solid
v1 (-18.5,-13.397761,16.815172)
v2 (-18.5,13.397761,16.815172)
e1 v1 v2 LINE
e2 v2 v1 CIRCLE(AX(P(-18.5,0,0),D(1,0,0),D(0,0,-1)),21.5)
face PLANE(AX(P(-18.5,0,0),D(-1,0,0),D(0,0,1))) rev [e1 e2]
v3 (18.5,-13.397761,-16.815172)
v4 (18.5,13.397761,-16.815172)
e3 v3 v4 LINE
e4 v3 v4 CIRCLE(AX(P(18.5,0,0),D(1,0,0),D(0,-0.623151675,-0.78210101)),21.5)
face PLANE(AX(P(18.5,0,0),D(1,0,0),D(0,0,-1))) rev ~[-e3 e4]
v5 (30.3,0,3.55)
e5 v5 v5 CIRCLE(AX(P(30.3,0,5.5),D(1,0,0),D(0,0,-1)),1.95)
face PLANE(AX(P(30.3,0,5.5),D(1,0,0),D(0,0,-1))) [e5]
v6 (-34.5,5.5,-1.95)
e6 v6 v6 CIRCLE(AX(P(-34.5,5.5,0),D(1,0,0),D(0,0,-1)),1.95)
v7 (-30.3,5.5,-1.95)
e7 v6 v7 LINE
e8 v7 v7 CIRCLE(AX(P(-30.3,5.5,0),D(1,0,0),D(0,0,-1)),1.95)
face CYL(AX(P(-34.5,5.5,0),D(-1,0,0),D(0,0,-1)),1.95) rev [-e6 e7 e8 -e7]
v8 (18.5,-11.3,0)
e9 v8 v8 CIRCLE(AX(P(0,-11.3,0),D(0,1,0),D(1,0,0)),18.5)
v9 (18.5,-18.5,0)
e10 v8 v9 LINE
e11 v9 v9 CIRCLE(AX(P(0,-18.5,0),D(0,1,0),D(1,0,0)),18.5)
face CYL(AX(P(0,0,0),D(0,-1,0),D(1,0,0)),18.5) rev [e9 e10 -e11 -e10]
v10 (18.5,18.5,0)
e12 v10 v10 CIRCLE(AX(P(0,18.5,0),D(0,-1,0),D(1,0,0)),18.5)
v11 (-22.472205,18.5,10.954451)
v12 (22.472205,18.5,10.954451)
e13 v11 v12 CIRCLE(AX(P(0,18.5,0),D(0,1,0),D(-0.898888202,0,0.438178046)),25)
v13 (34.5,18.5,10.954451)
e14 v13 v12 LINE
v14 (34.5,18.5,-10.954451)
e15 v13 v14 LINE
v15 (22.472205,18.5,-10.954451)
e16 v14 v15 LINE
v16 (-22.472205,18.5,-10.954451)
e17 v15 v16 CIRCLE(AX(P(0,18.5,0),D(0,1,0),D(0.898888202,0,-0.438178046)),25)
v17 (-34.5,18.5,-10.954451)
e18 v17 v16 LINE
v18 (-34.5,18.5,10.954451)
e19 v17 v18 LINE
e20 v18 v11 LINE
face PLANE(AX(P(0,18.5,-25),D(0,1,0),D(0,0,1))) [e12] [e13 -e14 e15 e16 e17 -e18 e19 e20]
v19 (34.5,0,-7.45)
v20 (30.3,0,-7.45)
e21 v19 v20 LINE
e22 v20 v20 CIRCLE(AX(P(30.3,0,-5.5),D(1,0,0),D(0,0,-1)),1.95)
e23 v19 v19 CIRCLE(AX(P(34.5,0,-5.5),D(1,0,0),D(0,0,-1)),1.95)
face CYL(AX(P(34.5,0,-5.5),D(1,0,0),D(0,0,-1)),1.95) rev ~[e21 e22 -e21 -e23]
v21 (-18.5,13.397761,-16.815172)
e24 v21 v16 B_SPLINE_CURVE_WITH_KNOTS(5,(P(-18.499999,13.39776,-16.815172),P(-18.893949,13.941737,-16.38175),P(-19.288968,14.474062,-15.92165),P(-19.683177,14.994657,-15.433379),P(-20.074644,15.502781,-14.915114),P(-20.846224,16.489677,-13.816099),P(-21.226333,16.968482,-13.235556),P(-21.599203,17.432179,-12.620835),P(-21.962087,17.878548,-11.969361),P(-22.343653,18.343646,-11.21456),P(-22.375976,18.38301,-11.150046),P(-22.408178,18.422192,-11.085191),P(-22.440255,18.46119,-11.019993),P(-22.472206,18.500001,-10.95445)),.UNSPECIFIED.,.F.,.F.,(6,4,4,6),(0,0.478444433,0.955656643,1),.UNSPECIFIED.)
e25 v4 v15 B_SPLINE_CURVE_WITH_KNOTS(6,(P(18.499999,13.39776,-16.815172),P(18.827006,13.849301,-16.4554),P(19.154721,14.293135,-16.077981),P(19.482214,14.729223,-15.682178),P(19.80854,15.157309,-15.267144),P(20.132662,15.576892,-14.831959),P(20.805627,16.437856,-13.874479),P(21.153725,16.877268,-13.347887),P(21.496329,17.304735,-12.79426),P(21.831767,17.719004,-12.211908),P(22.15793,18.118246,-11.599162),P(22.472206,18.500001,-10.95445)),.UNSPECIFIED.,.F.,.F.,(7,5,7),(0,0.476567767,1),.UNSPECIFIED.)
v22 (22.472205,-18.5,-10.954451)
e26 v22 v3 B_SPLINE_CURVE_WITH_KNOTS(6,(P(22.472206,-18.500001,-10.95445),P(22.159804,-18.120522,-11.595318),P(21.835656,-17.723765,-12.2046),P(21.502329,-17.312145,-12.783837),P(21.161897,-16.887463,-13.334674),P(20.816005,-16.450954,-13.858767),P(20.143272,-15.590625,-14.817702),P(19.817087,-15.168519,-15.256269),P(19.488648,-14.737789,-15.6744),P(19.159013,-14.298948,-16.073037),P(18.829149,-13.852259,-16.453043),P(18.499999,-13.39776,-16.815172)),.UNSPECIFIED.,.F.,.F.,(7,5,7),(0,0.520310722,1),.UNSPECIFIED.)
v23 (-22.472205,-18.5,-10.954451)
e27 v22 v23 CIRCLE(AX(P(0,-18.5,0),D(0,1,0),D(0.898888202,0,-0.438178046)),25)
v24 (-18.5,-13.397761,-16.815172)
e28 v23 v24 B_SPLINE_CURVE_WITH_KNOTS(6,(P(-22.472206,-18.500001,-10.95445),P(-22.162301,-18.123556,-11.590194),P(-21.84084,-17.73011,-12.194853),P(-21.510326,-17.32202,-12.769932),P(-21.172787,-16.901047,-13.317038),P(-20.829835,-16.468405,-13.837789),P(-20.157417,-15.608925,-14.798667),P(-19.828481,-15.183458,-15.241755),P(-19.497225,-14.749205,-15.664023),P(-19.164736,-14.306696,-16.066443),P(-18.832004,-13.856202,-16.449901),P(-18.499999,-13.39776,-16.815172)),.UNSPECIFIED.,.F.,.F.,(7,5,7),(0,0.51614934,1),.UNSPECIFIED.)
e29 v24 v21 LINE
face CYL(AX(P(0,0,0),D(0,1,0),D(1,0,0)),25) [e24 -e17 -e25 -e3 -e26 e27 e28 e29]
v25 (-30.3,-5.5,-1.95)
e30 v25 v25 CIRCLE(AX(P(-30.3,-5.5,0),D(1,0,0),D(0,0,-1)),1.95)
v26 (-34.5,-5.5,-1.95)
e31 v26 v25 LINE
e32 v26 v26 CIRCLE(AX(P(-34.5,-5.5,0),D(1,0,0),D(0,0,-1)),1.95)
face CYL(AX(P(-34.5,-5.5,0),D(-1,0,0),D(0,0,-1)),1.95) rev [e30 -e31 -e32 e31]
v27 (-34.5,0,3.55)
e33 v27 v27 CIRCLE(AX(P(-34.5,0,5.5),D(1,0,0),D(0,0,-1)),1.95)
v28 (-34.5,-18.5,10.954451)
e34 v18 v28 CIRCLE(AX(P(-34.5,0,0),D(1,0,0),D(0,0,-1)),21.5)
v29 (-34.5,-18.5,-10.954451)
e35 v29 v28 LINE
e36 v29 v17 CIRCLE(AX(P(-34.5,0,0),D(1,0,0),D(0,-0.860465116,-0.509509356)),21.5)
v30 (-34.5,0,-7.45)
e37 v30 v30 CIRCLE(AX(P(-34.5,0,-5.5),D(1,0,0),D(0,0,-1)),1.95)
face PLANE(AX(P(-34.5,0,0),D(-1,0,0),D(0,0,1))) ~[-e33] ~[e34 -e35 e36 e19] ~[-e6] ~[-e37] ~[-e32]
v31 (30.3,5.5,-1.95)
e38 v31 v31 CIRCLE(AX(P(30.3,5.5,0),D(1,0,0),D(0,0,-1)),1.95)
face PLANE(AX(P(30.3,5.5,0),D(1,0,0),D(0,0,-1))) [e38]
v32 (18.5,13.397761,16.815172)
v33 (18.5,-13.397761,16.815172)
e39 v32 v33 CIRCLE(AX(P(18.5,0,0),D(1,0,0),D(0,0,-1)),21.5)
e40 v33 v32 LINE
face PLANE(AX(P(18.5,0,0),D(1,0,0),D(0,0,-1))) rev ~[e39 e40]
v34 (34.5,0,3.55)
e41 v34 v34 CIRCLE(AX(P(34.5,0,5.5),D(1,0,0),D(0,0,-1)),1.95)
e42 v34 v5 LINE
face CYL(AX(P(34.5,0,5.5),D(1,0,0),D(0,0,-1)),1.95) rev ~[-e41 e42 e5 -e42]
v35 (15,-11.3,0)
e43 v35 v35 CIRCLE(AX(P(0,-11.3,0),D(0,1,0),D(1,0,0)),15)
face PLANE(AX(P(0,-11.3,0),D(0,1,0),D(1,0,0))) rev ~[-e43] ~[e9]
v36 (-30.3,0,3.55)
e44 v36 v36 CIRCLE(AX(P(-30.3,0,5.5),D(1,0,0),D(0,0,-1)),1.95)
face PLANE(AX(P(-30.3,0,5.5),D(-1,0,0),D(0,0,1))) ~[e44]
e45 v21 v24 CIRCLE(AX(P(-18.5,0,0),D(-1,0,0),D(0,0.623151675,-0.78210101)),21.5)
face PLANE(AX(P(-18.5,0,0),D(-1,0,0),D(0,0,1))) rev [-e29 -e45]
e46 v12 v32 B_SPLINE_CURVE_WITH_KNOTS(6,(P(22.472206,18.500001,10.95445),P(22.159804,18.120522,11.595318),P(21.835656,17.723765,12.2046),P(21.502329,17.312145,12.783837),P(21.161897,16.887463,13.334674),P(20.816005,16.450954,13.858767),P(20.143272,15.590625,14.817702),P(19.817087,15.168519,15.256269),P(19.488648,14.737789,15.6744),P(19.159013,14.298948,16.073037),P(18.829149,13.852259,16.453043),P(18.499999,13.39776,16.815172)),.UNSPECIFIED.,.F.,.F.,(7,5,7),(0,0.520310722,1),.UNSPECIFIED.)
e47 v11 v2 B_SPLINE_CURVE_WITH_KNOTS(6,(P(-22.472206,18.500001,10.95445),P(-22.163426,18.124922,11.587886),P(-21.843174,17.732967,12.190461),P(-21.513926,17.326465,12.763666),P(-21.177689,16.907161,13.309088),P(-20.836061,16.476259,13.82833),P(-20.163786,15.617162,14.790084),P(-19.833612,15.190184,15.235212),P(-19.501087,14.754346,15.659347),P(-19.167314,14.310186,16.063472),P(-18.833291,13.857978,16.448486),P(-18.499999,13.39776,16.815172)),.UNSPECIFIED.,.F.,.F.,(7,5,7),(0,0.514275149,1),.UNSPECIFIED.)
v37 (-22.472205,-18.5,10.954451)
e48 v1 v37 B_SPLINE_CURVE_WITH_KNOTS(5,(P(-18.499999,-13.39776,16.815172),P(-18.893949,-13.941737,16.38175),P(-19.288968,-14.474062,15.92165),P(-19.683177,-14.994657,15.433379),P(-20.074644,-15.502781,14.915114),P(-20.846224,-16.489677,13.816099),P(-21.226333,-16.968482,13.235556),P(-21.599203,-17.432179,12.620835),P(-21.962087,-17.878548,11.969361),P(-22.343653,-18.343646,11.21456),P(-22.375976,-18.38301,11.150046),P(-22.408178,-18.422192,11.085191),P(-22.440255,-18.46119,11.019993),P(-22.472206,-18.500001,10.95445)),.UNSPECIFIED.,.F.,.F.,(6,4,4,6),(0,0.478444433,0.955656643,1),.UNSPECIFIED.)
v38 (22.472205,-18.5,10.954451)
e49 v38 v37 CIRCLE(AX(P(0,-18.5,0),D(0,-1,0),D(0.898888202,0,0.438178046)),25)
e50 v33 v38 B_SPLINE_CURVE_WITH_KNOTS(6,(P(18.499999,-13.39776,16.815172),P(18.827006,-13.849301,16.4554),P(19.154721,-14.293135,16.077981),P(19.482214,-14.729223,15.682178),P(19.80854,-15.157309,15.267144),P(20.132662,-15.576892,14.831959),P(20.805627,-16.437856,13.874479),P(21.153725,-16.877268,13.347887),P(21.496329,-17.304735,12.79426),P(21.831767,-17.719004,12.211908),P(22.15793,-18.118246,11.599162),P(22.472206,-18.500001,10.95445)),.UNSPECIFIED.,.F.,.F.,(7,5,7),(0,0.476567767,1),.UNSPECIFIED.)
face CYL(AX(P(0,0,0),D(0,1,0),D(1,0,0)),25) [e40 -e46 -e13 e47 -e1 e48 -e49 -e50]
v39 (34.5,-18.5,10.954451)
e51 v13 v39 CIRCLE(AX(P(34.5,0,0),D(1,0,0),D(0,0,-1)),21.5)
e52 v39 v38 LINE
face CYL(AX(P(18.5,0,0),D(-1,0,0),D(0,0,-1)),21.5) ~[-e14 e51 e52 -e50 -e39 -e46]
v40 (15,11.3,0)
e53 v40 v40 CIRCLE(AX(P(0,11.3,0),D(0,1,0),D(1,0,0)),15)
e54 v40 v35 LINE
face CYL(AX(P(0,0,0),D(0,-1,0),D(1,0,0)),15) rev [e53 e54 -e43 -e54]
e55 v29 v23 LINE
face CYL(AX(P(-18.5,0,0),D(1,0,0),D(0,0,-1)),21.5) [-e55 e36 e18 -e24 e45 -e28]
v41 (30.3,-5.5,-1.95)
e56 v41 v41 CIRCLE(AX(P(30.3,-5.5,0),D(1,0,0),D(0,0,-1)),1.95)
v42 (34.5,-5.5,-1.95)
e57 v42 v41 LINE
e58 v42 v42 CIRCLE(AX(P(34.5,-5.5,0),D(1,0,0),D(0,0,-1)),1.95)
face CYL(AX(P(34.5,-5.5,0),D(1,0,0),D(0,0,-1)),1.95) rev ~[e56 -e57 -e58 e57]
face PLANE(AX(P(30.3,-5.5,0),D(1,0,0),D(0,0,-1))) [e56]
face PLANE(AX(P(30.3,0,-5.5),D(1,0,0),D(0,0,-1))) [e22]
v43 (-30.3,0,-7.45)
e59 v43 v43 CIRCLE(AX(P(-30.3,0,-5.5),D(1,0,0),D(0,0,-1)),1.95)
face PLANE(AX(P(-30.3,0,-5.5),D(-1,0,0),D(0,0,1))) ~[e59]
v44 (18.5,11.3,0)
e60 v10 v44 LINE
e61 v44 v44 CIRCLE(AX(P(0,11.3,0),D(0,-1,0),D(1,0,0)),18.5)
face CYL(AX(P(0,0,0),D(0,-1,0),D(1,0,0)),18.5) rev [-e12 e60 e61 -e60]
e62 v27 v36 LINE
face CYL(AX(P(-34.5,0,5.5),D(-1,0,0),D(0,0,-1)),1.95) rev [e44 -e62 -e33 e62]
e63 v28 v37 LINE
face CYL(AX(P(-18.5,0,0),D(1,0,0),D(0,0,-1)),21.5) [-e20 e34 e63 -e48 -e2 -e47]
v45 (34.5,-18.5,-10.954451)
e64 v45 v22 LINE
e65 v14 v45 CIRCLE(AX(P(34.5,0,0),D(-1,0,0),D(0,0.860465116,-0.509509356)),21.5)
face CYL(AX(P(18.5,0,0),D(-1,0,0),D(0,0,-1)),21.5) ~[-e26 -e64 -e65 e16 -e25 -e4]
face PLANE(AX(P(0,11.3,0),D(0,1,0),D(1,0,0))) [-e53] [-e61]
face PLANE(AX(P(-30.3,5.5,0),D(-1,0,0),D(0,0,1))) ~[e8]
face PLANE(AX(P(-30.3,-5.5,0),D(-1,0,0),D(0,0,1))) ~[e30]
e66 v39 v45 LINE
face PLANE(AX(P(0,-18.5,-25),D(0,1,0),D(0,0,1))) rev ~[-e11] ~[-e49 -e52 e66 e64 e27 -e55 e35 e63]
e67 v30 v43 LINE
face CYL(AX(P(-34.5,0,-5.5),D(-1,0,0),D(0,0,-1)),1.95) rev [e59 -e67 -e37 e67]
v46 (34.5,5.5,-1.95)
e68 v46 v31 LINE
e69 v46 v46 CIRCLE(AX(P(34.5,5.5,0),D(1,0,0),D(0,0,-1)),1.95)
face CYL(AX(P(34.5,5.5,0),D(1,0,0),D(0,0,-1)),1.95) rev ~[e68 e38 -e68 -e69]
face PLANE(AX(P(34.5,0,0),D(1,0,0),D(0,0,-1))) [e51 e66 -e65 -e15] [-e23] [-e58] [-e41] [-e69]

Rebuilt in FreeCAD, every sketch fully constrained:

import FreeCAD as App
import Part
import Sketcher

V = App.Vector


def add_polygon(sketch, points):
    """Adds a closed chain of lines whose ends are joined by coincident constraints."""
    first, n = sketch.GeometryCount, len(points)
    for a, b in zip(points, points[1:] + points[:1]):
        sketch.addGeometry(Part.LineSegment(App.Vector(*a, 0), App.Vector(*b, 0)), False)
    for i in range(n):
        sketch.addConstraint(Sketcher.Constraint("Coincident", first + i, 2, first + (i + 1) % n, 1))

doc = App.newDocument("Part")
body = doc.addObject("PartDesign::Body", "Body")

sketch1 = body.newObject("Sketcher::SketchObject", "Sketch")
sketch1.AttachmentSupport = (doc.getObject("XZ_Plane"), [""])
sketch1.MapMode = "FlatFace"
sketch1.addGeometry(Part.Circle(V(0, 0, 0), V(0, 0, 1), 25), False)
sketch1.addGeometry(Part.Circle(V(0, 0, 0), V(0, 0, 1), 18), False)
sketch1.addConstraint(Sketcher.Constraint("Coincident", 0, 3, -1, 1))
sketch1.addConstraint(Sketcher.Constraint("Coincident", 1, 3, -1, 1))
sketch1.addConstraint(Sketcher.Constraint("Diameter", 0, 50.0))
sketch1.addConstraint(Sketcher.Constraint("Diameter", 1, 37.0))
pad1 = body.newObject("PartDesign::Pad", "Pad")
pad1.Profile = sketch1
pad1.Length = 37
pad1.Midplane = True

sketch2 = body.newObject("Sketcher::SketchObject", "Sketch001")
sketch2.AttachmentSupport = (doc.getObject("XZ_Plane"), [""])
sketch2.MapMode = "FlatFace"
sketch2.addGeometry(Part.Circle(V(0, 0, 0), V(0, 0, 1), 18), False)
sketch2.addGeometry(Part.Circle(V(0, 0, 0), V(0, 0, 1), 15), False)
sketch2.addConstraint(Sketcher.Constraint("Coincident", 0, 3, -1, 1))
sketch2.addConstraint(Sketcher.Constraint("Coincident", 1, 3, -1, 1))
sketch2.addConstraint(Sketcher.Constraint("Diameter", 0, 37.0))
sketch2.addConstraint(Sketcher.Constraint("Diameter", 1, 30.0))
pad2 = body.newObject("PartDesign::Pad", "Pad001")
pad2.Profile = sketch2
pad2.Length = 22.6
pad2.Midplane = True

sketch3 = body.newObject("Sketcher::SketchObject", "Sketch002")
sketch3.AttachmentSupport = (doc.getObject("YZ_Plane"), [""])
sketch3.MapMode = "FlatFace"
sketch3.AttachmentOffset = App.Placement(V(0, 0, 18.5), App.Rotation())
sketch3.addGeometry(Part.Circle(V(0, 0, 0), V(0, 0, 1), 22), False)
sketch3.addConstraint(Sketcher.Constraint("Coincident", 0, 3, -1, 1))
sketch3.addConstraint(Sketcher.Constraint("Diameter", 0, 43.0))
pad3 = body.newObject("PartDesign::Pad", "Pad002")
pad3.Profile = sketch3
pad3.Length = 16

sketch4 = body.newObject("Sketcher::SketchObject", "Sketch003")
sketch4.AttachmentSupport = (doc.getObject("YZ_Plane"), [""])
sketch4.MapMode = "FlatFace"
sketch4.AttachmentOffset = App.Placement(V(0, 0, 34.5), App.Rotation())
sketch4.addGeometry(Part.Circle(V(0, 5.5, 0), V(0, 0, 1), 1.9), False)
sketch4.addGeometry(Part.Circle(V(5.5, 0, 0), V(0, 0, 1), 1.9), False)
sketch4.addGeometry(Part.Circle(V(0, -5.5, 0), V(0, 0, 1), 1.9), False)
sketch4.addGeometry(Part.Circle(V(-5.5, 0, 0), V(0, 0, 1), 1.9), False)
sketch4.addConstraint(Sketcher.Constraint("Equal", 0, 1))
sketch4.addConstraint(Sketcher.Constraint("Equal", 1, 2))
sketch4.addConstraint(Sketcher.Constraint("Equal", 2, 3))
sketch4.addConstraint(Sketcher.Constraint("Symmetric", 0, 3, 2, 3, -1, 1))
sketch4.addConstraint(Sketcher.Constraint("Symmetric", 1, 3, 3, 3, -1, 1))
sketch4.addConstraint(Sketcher.Constraint("PointOnObject", 0, 3, -2))
sketch4.addConstraint(Sketcher.Constraint("PointOnObject", 1, 3, -1))
sketch4.addConstraint(Sketcher.Constraint("Diameter", 0, 3.9))
sketch4.addConstraint(Sketcher.Constraint("DistanceY", 2, 3, 0, 3, 11.0))
sketch4.addConstraint(Sketcher.Constraint("DistanceX", 3, 3, 1, 3, 11.0))
pocket1 = body.newObject("PartDesign::Pocket", "Pocket")
pocket1.Profile = sketch4
pocket1.Length = 4.2
doc.recompute()

mirrored = body.newObject("PartDesign::Mirrored", "Mirrored")
mirrored.Originals = [pad3, pocket1]
mirrored.MirrorPlane = (doc.getObject("YZ_Plane"), [""])
body.Tip = mirrored

sketch5 = body.newObject("Sketcher::SketchObject", "Sketch004")
sketch5.AttachmentSupport = (doc.getObject("YZ_Plane"), [""])
sketch5.MapMode = "FlatFace"
add_polygon(sketch5, [(32, 36), (32, -36), (-32, -36), (-32, 36)])
add_polygon(sketch5, [(-18, -25), (18, -25), (18, 25), (-18, 25)])
sketch5.addConstraint(Sketcher.Constraint("Vertical", 0))
sketch5.addConstraint(Sketcher.Constraint("Horizontal", 1))
sketch5.addConstraint(Sketcher.Constraint("Vertical", 2))
sketch5.addConstraint(Sketcher.Constraint("Horizontal", 3))
sketch5.addConstraint(Sketcher.Constraint("Horizontal", 4))
sketch5.addConstraint(Sketcher.Constraint("Vertical", 5))
sketch5.addConstraint(Sketcher.Constraint("Horizontal", 6))
sketch5.addConstraint(Sketcher.Constraint("Vertical", 7))
sketch5.addConstraint(Sketcher.Constraint("Symmetric", 4, 2, 6, 2, -1, 1))
sketch5.addConstraint(Sketcher.Constraint("DistanceX", 4, 1, 4, 2, 37.0))
sketch5.addConstraint(Sketcher.Constraint("DistanceY", 5, 1, 5, 2, 50.0))
sketch5.addConstraint(Sketcher.Constraint("DistanceX", 1, 2, 1, 1, 64.09))
sketch5.addConstraint(Sketcher.Constraint("DistanceY", 0, 2, 0, 1, 71.09))
sketch5.addConstraint(Sketcher.Constraint("DistanceY", 0, 2, -1, 1, 35.545))
sketch5.addConstraint(Sketcher.Constraint("DistanceX", -1, 1, 0, 2, 32.044983))
pocket2 = body.newObject("PartDesign::Pocket", "Pocket001")
pocket2.Profile = sketch5
pocket2.Type = "ThroughAll"
pocket2.Midplane = True

doc.recompute()
